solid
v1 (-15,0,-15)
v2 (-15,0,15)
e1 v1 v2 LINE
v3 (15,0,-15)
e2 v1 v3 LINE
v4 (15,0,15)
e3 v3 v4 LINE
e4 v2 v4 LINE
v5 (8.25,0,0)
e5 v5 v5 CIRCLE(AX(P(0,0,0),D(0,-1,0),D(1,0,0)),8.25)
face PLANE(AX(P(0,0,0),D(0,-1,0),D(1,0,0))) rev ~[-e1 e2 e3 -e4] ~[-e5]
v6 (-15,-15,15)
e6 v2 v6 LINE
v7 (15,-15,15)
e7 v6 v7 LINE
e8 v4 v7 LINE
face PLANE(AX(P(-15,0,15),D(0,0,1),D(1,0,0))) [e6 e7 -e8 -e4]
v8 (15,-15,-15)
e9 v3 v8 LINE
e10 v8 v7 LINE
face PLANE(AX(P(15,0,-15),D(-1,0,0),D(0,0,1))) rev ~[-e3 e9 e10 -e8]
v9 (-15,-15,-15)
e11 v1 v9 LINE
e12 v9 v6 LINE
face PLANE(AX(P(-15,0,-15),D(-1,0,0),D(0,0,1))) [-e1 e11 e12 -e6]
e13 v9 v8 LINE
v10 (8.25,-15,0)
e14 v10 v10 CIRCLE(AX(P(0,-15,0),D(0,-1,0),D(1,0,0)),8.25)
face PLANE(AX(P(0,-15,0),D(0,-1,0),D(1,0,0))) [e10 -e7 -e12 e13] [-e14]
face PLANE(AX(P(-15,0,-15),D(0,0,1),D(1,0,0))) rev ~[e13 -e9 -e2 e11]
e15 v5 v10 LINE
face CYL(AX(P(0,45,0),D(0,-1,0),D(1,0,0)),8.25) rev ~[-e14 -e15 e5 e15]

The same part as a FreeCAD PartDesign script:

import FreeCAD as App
import Part
import Sketcher

V = App.Vector
Q = App.Units.Quantity


def add_polygon(sketch, points):
    """Adds a closed chain of lines whose ends are joined by coincident constraints."""
    first, n = sketch.GeometryCount, len(points)
    for a, b in zip(points, points[1:] + points[:1]):
        sketch.addGeometry(Part.LineSegment(App.Vector(*a, 0), App.Vector(*b, 0)), False)
    for i in range(n):
        sketch.addConstraint(Sketcher.Constraint("Coincident", first + i, 2, first + (i + 1) % n, 1))

doc = App.newDocument("Part")
body = doc.addObject("PartDesign::Body", "Body")

# Sketch on XZ plane
sketch1 = body.newObject("Sketcher::SketchObject", "Sketch")
sketch1.AttachmentSupport = (doc.getObject("XZ_Plane"), [""])
sketch1.MapMode = "FlatFace"
add_polygon(sketch1, [(-15, 15), (-15, -15), (15, -15), (15, 15)])  # lines 0-3
sketch1.addConstraint(Sketcher.Constraint("Vertical", 0))
sketch1.addConstraint(Sketcher.Constraint("Horizontal", 1))
sketch1.addConstraint(Sketcher.Constraint("Vertical", 2))
sketch1.addConstraint(Sketcher.Constraint("Horizontal", 3))
sketch1.addConstraint(Sketcher.Constraint("Symmetric", 0, 2, 2, 2, -1, 1))
sketch1.addConstraint(Sketcher.Constraint("Equal", 3, 0))
sketch1.addConstraint(Sketcher.Constraint("DistanceX", 1, 1, 1, 2, Q("30 mm")))
pad1 = body.newObject("PartDesign::Pad", "Pad")
pad1.Profile = sketch1
pad1.Length = 15

# Sketch on XZ plane
sketch2 = body.newObject("Sketcher::SketchObject", "Sketch001")
sketch2.AttachmentSupport = (doc.getObject("XZ_Plane"), [""])
sketch2.MapMode = "FlatFace"
sketch2.addGeometry(Part.Circle(V(0, 0, 0), V(0, 0, 1), 8), False)
sketch2.addConstraint(Sketcher.Constraint("Coincident", 0, 3, -1, 1))
sketch2.addConstraint(Sketcher.Constraint("Diameter", 0, Q("16.5 mm")))
doc.recompute()
hole = body.newObject("PartDesign::Hole", "Hole")
hole.Profile = sketch2
hole.ThreadType = "None"
hole.Diameter = 16.5
hole.DepthType = "ThroughAll"
hole.Reversed = True

doc.recompute()
